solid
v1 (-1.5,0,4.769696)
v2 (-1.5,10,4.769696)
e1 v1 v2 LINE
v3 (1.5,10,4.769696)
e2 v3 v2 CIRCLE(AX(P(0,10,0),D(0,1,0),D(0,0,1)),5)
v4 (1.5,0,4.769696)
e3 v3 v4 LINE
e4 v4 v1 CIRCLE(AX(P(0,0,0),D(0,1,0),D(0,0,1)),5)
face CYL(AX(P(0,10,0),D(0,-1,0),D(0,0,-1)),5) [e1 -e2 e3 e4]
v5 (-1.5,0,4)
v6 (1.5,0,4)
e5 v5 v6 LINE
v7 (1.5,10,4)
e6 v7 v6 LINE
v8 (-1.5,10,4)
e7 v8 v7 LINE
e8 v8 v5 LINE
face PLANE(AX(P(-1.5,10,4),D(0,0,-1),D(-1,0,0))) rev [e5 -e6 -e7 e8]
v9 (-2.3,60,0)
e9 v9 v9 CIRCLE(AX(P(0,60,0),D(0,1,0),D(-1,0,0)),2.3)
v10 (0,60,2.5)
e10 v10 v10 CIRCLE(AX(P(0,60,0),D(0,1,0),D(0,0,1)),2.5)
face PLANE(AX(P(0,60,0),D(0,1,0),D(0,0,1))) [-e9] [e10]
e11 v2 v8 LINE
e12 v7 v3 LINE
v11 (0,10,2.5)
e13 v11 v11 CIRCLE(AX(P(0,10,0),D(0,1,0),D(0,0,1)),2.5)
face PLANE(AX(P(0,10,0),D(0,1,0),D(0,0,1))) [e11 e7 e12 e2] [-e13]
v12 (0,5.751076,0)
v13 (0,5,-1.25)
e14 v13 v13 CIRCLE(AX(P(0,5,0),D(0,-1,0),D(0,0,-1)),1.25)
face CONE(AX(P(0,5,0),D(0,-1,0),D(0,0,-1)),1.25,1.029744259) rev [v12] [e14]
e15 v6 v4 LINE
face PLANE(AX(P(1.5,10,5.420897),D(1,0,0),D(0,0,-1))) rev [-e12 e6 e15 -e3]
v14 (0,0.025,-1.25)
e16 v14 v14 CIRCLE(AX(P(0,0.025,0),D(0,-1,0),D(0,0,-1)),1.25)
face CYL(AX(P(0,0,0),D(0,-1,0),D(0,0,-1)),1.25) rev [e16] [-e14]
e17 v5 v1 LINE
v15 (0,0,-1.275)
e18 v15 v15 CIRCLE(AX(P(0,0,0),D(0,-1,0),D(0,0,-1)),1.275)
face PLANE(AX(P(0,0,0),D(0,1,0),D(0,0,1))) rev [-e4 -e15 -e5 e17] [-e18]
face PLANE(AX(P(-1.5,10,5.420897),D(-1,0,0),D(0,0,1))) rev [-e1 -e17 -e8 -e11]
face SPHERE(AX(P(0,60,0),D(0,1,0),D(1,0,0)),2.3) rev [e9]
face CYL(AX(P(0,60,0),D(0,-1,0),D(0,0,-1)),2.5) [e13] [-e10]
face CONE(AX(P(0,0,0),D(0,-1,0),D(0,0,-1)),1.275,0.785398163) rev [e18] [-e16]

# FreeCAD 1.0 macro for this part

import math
import FreeCAD as App
import Part
import Sketcher
from FreeCAD import Vector
Q = App.Units.Quantity

doc = App.newDocument("Part")
body = doc.addObject("PartDesign::Body", "Body")

# Sketch on XZ plane
sketch1 = body.newObject("Sketcher::SketchObject", "Sketch")
sketch1.AttachmentSupport = (doc.getObject("XZ_Plane"), [""])
sketch1.MapMode = "FlatFace"
sketch1.addGeometry(Part.Circle(Vector(0, 0, 0), Vector(0, 0, 1), 5), False)
sketch1.addConstraint([
    Sketcher.Constraint("Coincident", 0, 3, -1, 1),
    Sketcher.Constraint("Diameter", 0, Q("10 mm")),
])
pad1 = body.newObject("PartDesign::Pad", "Pad")
pad1.Profile = sketch1
pad1.Length = 10
pad1.Reversed = True

# Sketch on XZ plane
sketch2 = body.newObject("Sketcher::SketchObject", "Sketch001")
sketch2.AttachmentSupport = (doc.getObject("XZ_Plane"), [""])
sketch2.MapMode = "FlatFace"
sketch2.AttachmentOffset = App.Placement(Vector(0, 0, -10), App.Rotation())
sketch2.addGeometry(Part.Circle(Vector(0, 0, 0), Vector(0, 0, 1), 2.5), False)
sketch2.addConstraint([
    Sketcher.Constraint("Coincident", 0, 3, -1, 1),
    Sketcher.Constraint("Diameter", 0, Q("5 mm")),
])
pad2 = body.newObject("PartDesign::Pad", "Pad001")
pad2.Profile = sketch2
pad2.Length = 50
pad2.Reversed = True

# Sketch on XY plane
sketch3 = body.newObject("Sketcher::SketchObject", "Sketch002")
sketch3.AttachmentSupport = (doc.getObject("XY_Plane"), [""])
sketch3.MapMode = "FlatFace"
sketch3.addGeometry([
    Part.LineSegment(Vector(2.3, 60, 0), Vector(0, 60, 0)),
    Part.LineSegment(Vector(0, 60, 0), Vector(0, 57.7, 0)),
    Part.ArcOfCircle(Part.Circle(Vector(0, 60, 0), Vector(0, 0, 1), 2.3), math.radians(-90), math.radians(0)),
], False)
sketch3.addConstraint([
    Sketcher.Constraint("Coincident", 0, 2, 1, 1),
    Sketcher.Constraint("Coincident", 1, 2, 2, 1),
    Sketcher.Constraint("Coincident", 2, 2, 0, 1),
    Sketcher.Constraint("Horizontal", 0),
    Sketcher.Constraint("Vertical", 1),
    Sketcher.Constraint("Coincident", 0, 2, 2, 3),
    Sketcher.Constraint("PointOnObject", 2, 3, -2),
    Sketcher.Constraint("Radius", 2, Q("2.3 mm")),
    Sketcher.Constraint("DistanceY", -1, 1, 2, 3, Q("60 mm")),
])
groove = body.newObject("PartDesign::Groove", "Groove")
groove.Profile = sketch3
groove.ReferenceAxis = (sketch3, ["V_Axis"])
groove.Angle = 360

# Sketch on XZ plane
sketch4 = body.newObject("Sketcher::SketchObject", "Sketch003")
sketch4.AttachmentSupport = (doc.getObject("XZ_Plane"), [""])
sketch4.MapMode = "FlatFace"
sketch4.addGeometry([
    Part.LineSegment(Vector(-1.5, 5.4, 0), Vector(-1.5, 4, 0)),
    Part.LineSegment(Vector(-1.5, 4, 0), Vector(1.5, 4, 0)),
    Part.LineSegment(Vector(1.5, 4, 0), Vector(1.5, 5.4, 0)),
    Part.LineSegment(Vector(1.5, 5.4, 0), Vector(-1.5, 5.4, 0)),
], False)
sketch4.addConstraint([
    Sketcher.Constraint("Coincident", 0, 2, 1, 1),
    Sketcher.Constraint("Coincident", 1, 2, 2, 1),
    Sketcher.Constraint("Coincident", 2, 2, 3, 1),
    Sketcher.Constraint("Coincident", 3, 2, 0, 1),
    Sketcher.Constraint("Vertical", 0),
    Sketcher.Constraint("Horizontal", 1),
    Sketcher.Constraint("Vertical", 2),
    Sketcher.Constraint("Horizontal", 3),
    Sketcher.Constraint("DistanceX", 1, 1, 1, 2, Q("3 mm")),
    Sketcher.Constraint("DistanceY", -1, 1, 0, 2, Q("4 mm")),
    Sketcher.Constraint("DistanceX", 0, 2, -1, 1, Q("1.5 mm")),
    Sketcher.Constraint("DistanceY", 0, 2, 0, 1, Q("1.420897 mm")),
])
pocket1 = body.newObject("PartDesign::Pocket", "Pocket")
pocket1.Profile = sketch4
pocket1.Length = 10

# Sketch on XZ plane
sketch5 = body.newObject("Sketcher::SketchObject", "Sketch004")
sketch5.AttachmentSupport = (doc.getObject("XZ_Plane"), [""])
sketch5.MapMode = "FlatFace"
sketch5.addGeometry(Part.Circle(Vector(0, 0, 0), Vector(0, 0, 1), 1.2), False)
sketch5.addConstraint([
    Sketcher.Constraint("Coincident", 0, 3, -1, 1),
    Sketcher.Constraint("Diameter", 0, Q("2.5 mm")),
])
doc.recompute()
hole = body.newObject("PartDesign::Hole", "Hole")
hole.Profile = sketch5
hole.ThreadType = "None"
hole.Diameter = 2.5
hole.DepthType = "Dimension"
hole.Depth = 5
hole.DrillPoint = "Angled"
hole.DrillPointAngle = 118
hole.HoleCutType = "Countersink"
hole.HoleCutDiameter = 2.55
hole.HoleCutCountersinkAngle = 90

doc.recompute()
